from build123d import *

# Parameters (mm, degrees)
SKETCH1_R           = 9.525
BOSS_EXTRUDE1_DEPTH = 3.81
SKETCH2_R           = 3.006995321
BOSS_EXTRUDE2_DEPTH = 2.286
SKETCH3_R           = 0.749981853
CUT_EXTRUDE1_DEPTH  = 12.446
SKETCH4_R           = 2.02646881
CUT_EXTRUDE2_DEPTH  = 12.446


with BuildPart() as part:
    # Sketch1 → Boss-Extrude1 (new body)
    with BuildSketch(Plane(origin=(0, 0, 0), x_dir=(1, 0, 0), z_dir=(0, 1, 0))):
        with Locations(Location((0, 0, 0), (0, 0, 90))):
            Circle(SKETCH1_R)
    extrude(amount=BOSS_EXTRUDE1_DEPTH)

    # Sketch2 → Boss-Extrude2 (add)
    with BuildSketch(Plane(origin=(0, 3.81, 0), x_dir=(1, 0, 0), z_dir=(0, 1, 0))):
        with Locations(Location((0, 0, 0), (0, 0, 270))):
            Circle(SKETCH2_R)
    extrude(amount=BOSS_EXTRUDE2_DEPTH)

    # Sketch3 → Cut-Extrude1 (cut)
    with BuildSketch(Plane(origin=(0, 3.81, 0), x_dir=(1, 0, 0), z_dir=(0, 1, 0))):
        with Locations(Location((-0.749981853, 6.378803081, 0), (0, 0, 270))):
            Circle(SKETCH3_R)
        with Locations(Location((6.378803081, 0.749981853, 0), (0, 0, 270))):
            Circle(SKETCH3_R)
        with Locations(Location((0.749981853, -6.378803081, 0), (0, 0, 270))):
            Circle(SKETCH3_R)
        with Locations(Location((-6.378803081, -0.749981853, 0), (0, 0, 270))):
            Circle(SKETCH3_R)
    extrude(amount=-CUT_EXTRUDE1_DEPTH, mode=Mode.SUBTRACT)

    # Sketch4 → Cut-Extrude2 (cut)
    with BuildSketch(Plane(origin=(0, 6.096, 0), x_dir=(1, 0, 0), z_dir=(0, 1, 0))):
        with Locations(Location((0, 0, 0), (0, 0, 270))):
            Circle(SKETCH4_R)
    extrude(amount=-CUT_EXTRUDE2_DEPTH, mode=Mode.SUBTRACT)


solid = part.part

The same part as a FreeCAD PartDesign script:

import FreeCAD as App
import Part
import Sketcher
Q = App.Units.Quantity

doc = App.newDocument("Part")
body = doc.addObject("PartDesign::Body", "Body")

sketch1 = body.newObject("Sketcher::SketchObject", "Sketch")
sketch1.AttachmentSupport = (doc.getObject("XZ_Plane"), [""])
sketch1.MapMode = "FlatFace"
sketch1.addGeometry(Part.Circle(App.Vector(0, 0, 0), App.Vector(0, 0, 1), 10), False)
sketch1.addConstraint([
    Sketcher.Constraint("Coincident", 0, 3, -1, 1),
    Sketcher.Constraint("Diameter", 0, Q("0.75 in")),
])
pad1 = body.newObject("PartDesign::Pad", "Pad")
pad1.Profile = sketch1
pad1.Length = Q("0.15 in")
pad1.Reversed = True

sketch2 = body.newObject("Sketcher::SketchObject", "Sketch001")
sketch2.AttachmentSupport = (doc.getObject("XZ_Plane"), [""])
sketch2.MapMode = "FlatFace"
sketch2.AttachmentOffset = App.Placement(App.Vector(0, 0, -0.15 * 25.4), App.Rotation())
sketch2.addGeometry(Part.Circle(App.Vector(0, 0, 0), App.Vector(0, 0, 1), 3), False)
sketch2.addConstraint([
    Sketcher.Constraint("Coincident", 0, 3, -1, 1),
    Sketcher.Constraint("Diameter", 0, Q("6.013991 mm")),
])
pad2 = body.newObject("PartDesign::Pad", "Pad001")
pad2.Profile = sketch2
pad2.Length = Q("0.09 in")
pad2.Reversed = True

sketch3 = body.newObject("Sketcher::SketchObject", "Sketch002")
sketch3.AttachmentSupport = (doc.getObject("XZ_Plane"), [""])
sketch3.MapMode = "FlatFace"
sketch3.AttachmentOffset = App.Placement(App.Vector(0, 0, -0.15 * 25.4), App.Rotation())
sketch3.addGeometry([
    Part.Circle(App.Vector(-0.7, -6.4, 0), App.Vector(0, 0, 1), 0.7),
    Part.Circle(App.Vector(6.4, -0.7, 0), App.Vector(0, 0, 1), 0.7),
    Part.Circle(App.Vector(0.7, 6.4, 0), App.Vector(0, 0, 1), 0.7),
    Part.Circle(App.Vector(-6.4, 0.7, 0), App.Vector(0, 0, 1), 0.7),
], False)
sketch3.addConstraint([
    Sketcher.Constraint("Equal", 0, 1),
    Sketcher.Constraint("Equal", 1, 2),
    Sketcher.Constraint("Equal", 2, 3),
    Sketcher.Constraint("Symmetric", 0, 3, 2, 3, -1, 1),
    Sketcher.Constraint("Symmetric", 1, 3, 3, 3, -1, 1),
    Sketcher.Constraint("Diameter", 0, Q("1.499964 mm")),
    Sketcher.Constraint("DistanceX", 0, 3, -1, 1, Q("0.749982 mm")),
    Sketcher.Constraint("DistanceY", 1, 3, -1, 1, Q("0.749982 mm")),
    Sketcher.Constraint("DistanceY", 0, 3, 1, 3, Q("5.628821 mm")),
    Sketcher.Constraint("DistanceX", 2, 3, 1, 3, Q("5.628821 mm")),
])
pocket1 = body.newObject("PartDesign::Pocket", "Pocket")
pocket1.Profile = sketch3
pocket1.Length = Q("0.49 in")
pocket1.Reversed = True

sketch4 = body.newObject("Sketcher::SketchObject", "Sketch003")
sketch4.AttachmentSupport = (doc.getObject("XZ_Plane"), [""])
sketch4.MapMode = "FlatFace"
sketch4.AttachmentOffset = App.Placement(App.Vector(0, 0, -0.24 * 25.4), App.Rotation())
sketch4.addGeometry(Part.Circle(App.Vector(0, 0, 0), App.Vector(0, 0, 1), 2), False)
sketch4.addConstraint([
    Sketcher.Constraint("Coincident", 0, 3, -1, 1),
    Sketcher.Constraint("Diameter", 0, Q("4.052938 mm")),
])
pocket2 = body.newObject("PartDesign::Pocket", "Pocket001")
pocket2.Profile = sketch4
pocket2.Length = Q("0.49 in")
pocket2.Reversed = True

doc.recompute()
